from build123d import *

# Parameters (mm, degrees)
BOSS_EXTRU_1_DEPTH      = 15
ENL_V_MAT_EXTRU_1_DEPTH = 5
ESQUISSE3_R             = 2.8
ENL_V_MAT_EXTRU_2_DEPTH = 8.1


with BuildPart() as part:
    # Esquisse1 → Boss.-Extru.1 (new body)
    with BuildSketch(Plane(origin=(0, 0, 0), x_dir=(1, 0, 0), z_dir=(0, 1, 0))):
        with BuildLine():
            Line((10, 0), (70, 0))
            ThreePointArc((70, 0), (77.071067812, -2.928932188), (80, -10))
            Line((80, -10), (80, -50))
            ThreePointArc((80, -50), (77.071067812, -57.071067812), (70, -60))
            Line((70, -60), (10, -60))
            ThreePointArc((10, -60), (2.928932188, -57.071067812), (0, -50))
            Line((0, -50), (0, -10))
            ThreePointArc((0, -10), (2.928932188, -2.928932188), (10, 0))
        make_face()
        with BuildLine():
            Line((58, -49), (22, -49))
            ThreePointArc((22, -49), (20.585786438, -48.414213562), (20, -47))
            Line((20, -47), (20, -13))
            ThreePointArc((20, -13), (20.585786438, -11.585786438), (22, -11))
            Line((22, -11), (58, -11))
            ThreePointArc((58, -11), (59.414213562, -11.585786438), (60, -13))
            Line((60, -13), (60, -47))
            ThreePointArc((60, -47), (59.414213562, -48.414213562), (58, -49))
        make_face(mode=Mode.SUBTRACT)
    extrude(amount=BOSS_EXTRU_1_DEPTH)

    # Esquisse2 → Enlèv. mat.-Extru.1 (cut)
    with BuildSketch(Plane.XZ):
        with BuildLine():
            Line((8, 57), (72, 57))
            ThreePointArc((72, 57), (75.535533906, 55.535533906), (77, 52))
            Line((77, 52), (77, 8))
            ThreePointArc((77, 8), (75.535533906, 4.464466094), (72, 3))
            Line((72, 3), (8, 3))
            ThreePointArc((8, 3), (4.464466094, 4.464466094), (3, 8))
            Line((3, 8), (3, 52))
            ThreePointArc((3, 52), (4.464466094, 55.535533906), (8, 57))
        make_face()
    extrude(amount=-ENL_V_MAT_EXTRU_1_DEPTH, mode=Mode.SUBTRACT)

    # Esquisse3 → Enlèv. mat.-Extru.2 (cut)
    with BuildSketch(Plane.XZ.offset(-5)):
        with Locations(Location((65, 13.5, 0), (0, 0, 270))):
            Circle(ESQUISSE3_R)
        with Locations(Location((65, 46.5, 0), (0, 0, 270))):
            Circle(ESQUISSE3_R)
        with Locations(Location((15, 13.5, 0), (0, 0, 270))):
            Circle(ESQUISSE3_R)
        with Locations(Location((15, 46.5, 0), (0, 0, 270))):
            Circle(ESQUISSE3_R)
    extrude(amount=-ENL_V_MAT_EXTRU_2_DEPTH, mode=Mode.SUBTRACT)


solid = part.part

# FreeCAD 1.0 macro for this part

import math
import FreeCAD as App
import Part
import Sketcher
from FreeCAD import Vector
Q = App.Units.Quantity

doc = App.newDocument("Part")
body = doc.addObject("PartDesign::Body", "Body")

# Sketch on XZ plane
sketch1 = body.newObject("Sketcher::SketchObject", "Sketch")
sketch1.AttachmentSupport = (doc.getObject("XZ_Plane"), [""])
sketch1.MapMode = "FlatFace"
sketch1.addGeometry(Part.LineSegment(Vector(70, 0, 0), Vector(10, 0, 0)), False)
sketch1.addGeometry(Part.ArcOfCircle(Part.Circle(Vector(10, 10, 0), Vector(0, 0, 1), 10), math.radians(180), math.radians(270)), False)
sketch1.addGeometry(Part.LineSegment(Vector(0, 10, 0), Vector(0, 50, 0)), False)
sketch1.addGeometry(Part.ArcOfCircle(Part.Circle(Vector(10, 50, 0), Vector(0, 0, 1), 10), math.radians(90), math.radians(180)), False)
sketch1.addGeometry(Part.LineSegment(Vector(10, 60, 0), Vector(70, 60, 0)), False)
sketch1.addGeometry(Part.ArcOfCircle(Part.Circle(Vector(70, 50, 0), Vector(0, 0, 1), 10), math.radians(0), math.radians(90)), False)
sketch1.addGeometry(Part.LineSegment(Vector(80, 50, 0), Vector(80, 10, 0)), False)
sketch1.addGeometry(Part.ArcOfCircle(Part.Circle(Vector(70, 10, 0), Vector(0, 0, 1), 10), math.radians(-90), math.radians(0)), False)
sketch1.addGeometry(Part.LineSegment(Vector(58, 49, 0), Vector(22, 49, 0)), False)
sketch1.addGeometry(Part.ArcOfCircle(Part.Circle(Vector(22, 47, 0), Vector(0, 0, 1), 2), math.radians(90), math.radians(180)), False)
sketch1.addGeometry(Part.LineSegment(Vector(20, 47, 0), Vector(20, 13, 0)), False)
sketch1.addGeometry(Part.ArcOfCircle(Part.Circle(Vector(22, 13, 0), Vector(0, 0, 1), 2), math.radians(-180), math.radians(-90)), False)
sketch1.addGeometry(Part.LineSegment(Vector(22, 11, 0), Vector(58, 11, 0)), False)
sketch1.addGeometry(Part.ArcOfCircle(Part.Circle(Vector(58, 13, 0), Vector(0, 0, 1), 2), math.radians(-90), math.radians(0)), False)
sketch1.addGeometry(Part.LineSegment(Vector(60, 13, 0), Vector(60, 47, 0)), False)
sketch1.addGeometry(Part.ArcOfCircle(Part.Circle(Vector(58, 47, 0), Vector(0, 0, 1), 2), math.radians(0), math.radians(90)), False)
sketch1.addConstraint(Sketcher.Constraint("Tangent", 0, 2, 1, 2))
sketch1.addConstraint(Sketcher.Constraint("Tangent", 1, 1, 2, 1))
sketch1.addConstraint(Sketcher.Constraint("Tangent", 2, 2, 3, 2))
sketch1.addConstraint(Sketcher.Constraint("Tangent", 3, 1, 4, 1))
sketch1.addConstraint(Sketcher.Constraint("Tangent", 4, 2, 5, 2))
sketch1.addConstraint(Sketcher.Constraint("Tangent", 5, 1, 6, 1))
sketch1.addConstraint(Sketcher.Constraint("Tangent", 6, 2, 7, 2))
sketch1.addConstraint(Sketcher.Constraint("Tangent", 7, 1, 0, 1))
sketch1.addConstraint(Sketcher.Constraint("Tangent", 8, 2, 9, 1))
sketch1.addConstraint(Sketcher.Constraint("Tangent", 9, 2, 10, 1))
sketch1.addConstraint(Sketcher.Constraint("Tangent", 10, 2, 11, 1))
sketch1.addConstraint(Sketcher.Constraint("Tangent", 11, 2, 12, 1))
sketch1.addConstraint(Sketcher.Constraint("Tangent", 12, 2, 13, 1))
sketch1.addConstraint(Sketcher.Constraint("Tangent", 13, 2, 14, 1))
sketch1.addConstraint(Sketcher.Constraint("Tangent", 14, 2, 15, 1))
sketch1.addConstraint(Sketcher.Constraint("Tangent", 15, 2, 8, 1))
sketch1.addConstraint(Sketcher.Constraint("Horizontal", 0))
sketch1.addConstraint(Sketcher.Constraint("Vertical", 2))
sketch1.addConstraint(Sketcher.Constraint("Horizontal", 4))
sketch1.addConstraint(Sketcher.Constraint("Vertical", 6))
sketch1.addConstraint(Sketcher.Constraint("Horizontal", 8))
sketch1.addConstraint(Sketcher.Constraint("Vertical", 10))
sketch1.addConstraint(Sketcher.Constraint("Horizontal", 12))
sketch1.addConstraint(Sketcher.Constraint("Vertical", 14))
sketch1.addConstraint(Sketcher.Constraint("Equal", 1, 3))
sketch1.addConstraint(Sketcher.Constraint("Equal", 3, 5))
sketch1.addConstraint(Sketcher.Constraint("Equal", 5, 7))
sketch1.addConstraint(Sketcher.Constraint("Equal", 9, 11))
sketch1.addConstraint(Sketcher.Constraint("Equal", 11, 13))
sketch1.addConstraint(Sketcher.Constraint("Equal", 13, 15))
sketch1.addConstraint(Sketcher.Constraint("PointOnObject", 0, 2, -1))
sketch1.addConstraint(Sketcher.Constraint("PointOnObject", 1, 1, -2))
sketch1.addConstraint(Sketcher.Constraint("Radius", 1, Q("10 mm")))
sketch1.addConstraint(Sketcher.Constraint("Radius", 9, Q("2 mm")))
sketch1.addConstraint(Sketcher.Constraint("DistanceX", 0, 2, 0, 1, Q("60 mm")))
sketch1.addConstraint(Sketcher.Constraint("DistanceX", 8, 2, 8, 1, Q("36 mm")))
sketch1.addConstraint(Sketcher.Constraint("DistanceY", 2, 1, 2, 2, Q("40 mm")))
sketch1.addConstraint(Sketcher.Constraint("DistanceY", 10, 2, 10, 1, Q("34 mm")))
sketch1.addConstraint(Sketcher.Constraint("DistanceX", -1, 1, 9, 3, Q("22 mm")))
sketch1.addConstraint(Sketcher.Constraint("DistanceY", -1, 1, 9, 3, Q("47 mm")))
pad1 = body.newObject("PartDesign::Pad", "Pad")
pad1.Profile = sketch1
pad1.Length = 15
pad1.Reversed = True

# Sketch on XZ plane
sketch2 = body.newObject("Sketcher::SketchObject", "Sketch001")
sketch2.AttachmentSupport = (doc.getObject("XZ_Plane"), [""])
sketch2.MapMode = "FlatFace"
sketch2.addGeometry(Part.LineSegment(Vector(72, 57, 0), Vector(8, 57, 0)), False)
sketch2.addGeometry(Part.ArcOfCircle(Part.Circle(Vector(8, 52, 0), Vector(0, 0, 1), 5), math.radians(90), math.radians(180)), False)
sketch2.addGeometry(Part.LineSegment(Vector(3, 52, 0), Vector(3, 8, 0)), False)
sketch2.addGeometry(Part.ArcOfCircle(Part.Circle(Vector(8, 8, 0), Vector(0, 0, 1), 5), math.radians(180), math.radians(270)), False)
sketch2.addGeometry(Part.LineSegment(Vector(8, 3, 0), Vector(72, 3, 0)), False)
sketch2.addGeometry(Part.ArcOfCircle(Part.Circle(Vector(72, 8, 0), Vector(0, 0, 1), 5), math.radians(-90), math.radians(0)), False)
sketch2.addGeometry(Part.LineSegment(Vector(77, 8, 0), Vector(77, 52, 0)), False)
sketch2.addGeometry(Part.ArcOfCircle(Part.Circle(Vector(72, 52, 0), Vector(0, 0, 1), 5), math.radians(0), math.radians(90)), False)
sketch2.addConstraint(Sketcher.Constraint("Tangent", 0, 2, 1, 1))
sketch2.addConstraint(Sketcher.Constraint("Tangent", 1, 2, 2, 1))
sketch2.addConstraint(Sketcher.Constraint("Tangent", 2, 2, 3, 1))
sketch2.addConstraint(Sketcher.Constraint("Tangent", 3, 2, 4, 1))
sketch2.addConstraint(Sketcher.Constraint("Tangent", 4, 2, 5, 1))
sketch2.addConstraint(Sketcher.Constraint("Tangent", 5, 2, 6, 1))
sketch2.addConstraint(Sketcher.Constraint("Tangent", 6, 2, 7, 1))
sketch2.addConstraint(Sketcher.Constraint("Tangent", 7, 2, 0, 1))
sketch2.addConstraint(Sketcher.Constraint("Horizontal", 0))
sketch2.addConstraint(Sketcher.Constraint("Vertical", 2))
sketch2.addConstraint(Sketcher.Constraint("Horizontal", 4))
sketch2.addConstraint(Sketcher.Constraint("Vertical", 6))
sketch2.addConstraint(Sketcher.Constraint("Equal", 1, 3))
sketch2.addConstraint(Sketcher.Constraint("Equal", 3, 5))
sketch2.addConstraint(Sketcher.Constraint("Equal", 5, 7))
sketch2.addConstraint(Sketcher.Constraint("Radius", 1, Q("5 mm")))
sketch2.addConstraint(Sketcher.Constraint("DistanceX", 0, 2, 0, 1, Q("64 mm")))
sketch2.addConstraint(Sketcher.Constraint("DistanceY", 2, 2, 2, 1, Q("44 mm")))
sketch2.addConstraint(Sketcher.Constraint("DistanceX", -1, 1, 1, 3, Q("8 mm")))
sketch2.addConstraint(Sketcher.Constraint("DistanceY", -1, 1, 1, 3, Q("52 mm")))
pocket1 = body.newObject("PartDesign::Pocket", "Pocket")
pocket1.Profile = sketch2
pocket1.Length = 5

# Sketch on XZ plane
sketch3 = body.newObject("Sketcher::SketchObject", "Sketch002")
sketch3.AttachmentSupport = (doc.getObject("XZ_Plane"), [""])
sketch3.MapMode = "FlatFace"
sketch3.AttachmentOffset = App.Placement(Vector(0, 0, -5), App.Rotation())
sketch3.addGeometry(Part.Circle(Vector(65, 13.5, 0), Vector(0, 0, 1), 2.8), False)
sketch3.addGeometry(Part.Circle(Vector(65, 46.5, 0), Vector(0, 0, 1), 2.8), False)
sketch3.addGeometry(Part.Circle(Vector(15, 13.5, 0), Vector(0, 0, 1), 2.8), False)
sketch3.addGeometry(Part.Circle(Vector(15, 46.5, 0), Vector(0, 0, 1), 2.8), False)
sketch3.addConstraint(Sketcher.Constraint("Equal", 0, 1))
sketch3.addConstraint(Sketcher.Constraint("Equal", 1, 2))
sketch3.addConstraint(Sketcher.Constraint("Equal", 2, 3))
sketch3.addConstraint(Sketcher.Constraint("Horizontal", 0, 3, 2, 3))
sketch3.addConstraint(Sketcher.Constraint("Horizontal", 1, 3, 3, 3))
sketch3.addConstraint(Sketcher.Constraint("Vertical", 0, 3, 1, 3))
sketch3.addConstraint(Sketcher.Constraint("Vertical", 2, 3, 3, 3))
sketch3.addConstraint(Sketcher.Constraint("Diameter", 0, Q("5.6 mm")))
sketch3.addConstraint(Sketcher.Constraint("DistanceX", -1, 1, 0, 3, Q("65 mm")))
sketch3.addConstraint(Sketcher.Constraint("DistanceX", -1, 1, 2, 3, Q("15 mm")))
sketch3.addConstraint(Sketcher.Constraint("DistanceY", 0, 3, 1, 3, Q("33 mm")))
sketch3.addConstraint(Sketcher.Constraint("DistanceY", -1, 1, 0, 3, Q("13.5 mm")))
pocket2 = body.newObject("PartDesign::Pocket", "Pocket001")
pocket2.Profile = sketch3
pocket2.Length = 8.1

doc.recompute()
